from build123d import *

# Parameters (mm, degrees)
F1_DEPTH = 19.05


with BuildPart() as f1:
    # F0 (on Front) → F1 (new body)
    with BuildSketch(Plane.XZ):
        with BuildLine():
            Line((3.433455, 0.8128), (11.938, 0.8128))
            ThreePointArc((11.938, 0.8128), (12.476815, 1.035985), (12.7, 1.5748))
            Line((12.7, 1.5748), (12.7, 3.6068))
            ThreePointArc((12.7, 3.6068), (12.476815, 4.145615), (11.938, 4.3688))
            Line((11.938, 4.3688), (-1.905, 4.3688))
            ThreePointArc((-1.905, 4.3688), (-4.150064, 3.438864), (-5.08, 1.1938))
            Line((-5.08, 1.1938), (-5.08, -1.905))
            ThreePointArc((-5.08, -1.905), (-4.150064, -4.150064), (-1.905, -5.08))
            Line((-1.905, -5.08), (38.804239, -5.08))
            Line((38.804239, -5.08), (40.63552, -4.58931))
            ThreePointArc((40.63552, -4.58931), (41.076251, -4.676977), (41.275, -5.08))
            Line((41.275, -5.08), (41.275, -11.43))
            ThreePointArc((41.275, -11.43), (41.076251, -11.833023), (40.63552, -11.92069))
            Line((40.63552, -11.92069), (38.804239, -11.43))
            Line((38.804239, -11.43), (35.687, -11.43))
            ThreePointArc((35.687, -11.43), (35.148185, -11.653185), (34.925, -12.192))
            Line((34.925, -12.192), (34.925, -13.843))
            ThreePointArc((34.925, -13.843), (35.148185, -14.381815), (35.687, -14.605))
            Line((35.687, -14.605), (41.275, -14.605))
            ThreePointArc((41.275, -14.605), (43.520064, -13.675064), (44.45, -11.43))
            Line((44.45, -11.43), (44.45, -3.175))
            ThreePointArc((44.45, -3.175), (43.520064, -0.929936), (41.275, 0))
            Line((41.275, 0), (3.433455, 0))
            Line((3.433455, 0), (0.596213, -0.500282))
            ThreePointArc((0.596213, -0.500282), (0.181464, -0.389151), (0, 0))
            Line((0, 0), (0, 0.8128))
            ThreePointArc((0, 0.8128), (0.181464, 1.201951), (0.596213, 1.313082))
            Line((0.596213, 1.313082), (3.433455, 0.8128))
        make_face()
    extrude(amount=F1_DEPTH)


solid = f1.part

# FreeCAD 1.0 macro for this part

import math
import FreeCAD as App
import Part
import Sketcher

V = App.Vector
Q = App.Units.Quantity

doc = App.newDocument("Part")
body = doc.addObject("PartDesign::Body", "Body")

sketch1 = body.newObject("Sketcher::SketchObject", "Sketch")
sketch1.AttachmentSupport = (doc.getObject("XZ_Plane"), [""])
sketch1.MapMode = "FlatFace"
sketch1.addGeometry([
    Part.LineSegment(V(3.4, 0.8, 0), V(11.9, 0.8, 0)),
    Part.ArcOfCircle(Part.Circle(V(11.9, 1.6, 0), V(0, 0, 1), 0.8), math.radians(-90), math.radians(0)),
    Part.LineSegment(V(12.7, 1.6, 0), V(12.7, 3.6, 0)),
    Part.ArcOfCircle(Part.Circle(V(11.9, 3.6, 0), V(0, 0, 1), 0.8), math.radians(0), math.radians(90)),
    Part.LineSegment(V(11.9, 4.4, 0), V(-1.9, 4.4, 0)),
    Part.ArcOfCircle(Part.Circle(V(-1.9, 1.2, 0), V(0, 0, 1), 3.2), math.radians(90), math.radians(180)),
    Part.LineSegment(V(-5.1, 1.2, 0), V(-5.1, -1.9, 0)),
    Part.ArcOfCircle(Part.Circle(V(-1.9, -1.9, 0), V(0, 0, 1), 3.2), math.radians(-180), math.radians(-90)),
    Part.LineSegment(V(-1.9, -5.1, 0), V(38.8, -5.1, 0)),
    Part.LineSegment(V(38.8, -5.1, 0), V(40.6, -4.6, 0)),
    Part.ArcOfCircle(Part.Circle(V(40.8, -5.1, 0), V(0, 0, 1), 0.5), math.radians(0), math.radians(105)),
    Part.LineSegment(V(41.3, -5.1, 0), V(41.3, -11.4, 0)),
    Part.ArcOfCircle(Part.Circle(V(40.8, -11.4, 0), V(0, 0, 1), 0.5), math.radians(-105), math.radians(0)),
    Part.LineSegment(V(40.6, -11.9, 0), V(38.8, -11.4, 0)),
    Part.LineSegment(V(38.8, -11.4, 0), V(35.7, -11.4, 0)),
    Part.ArcOfCircle(Part.Circle(V(35.7, -12.2, 0), V(0, 0, 1), 0.8), math.radians(90), math.radians(180)),
    Part.LineSegment(V(34.9, -12.2, 0), V(34.9, -13.8, 0)),
    Part.ArcOfCircle(Part.Circle(V(35.7, -13.8, 0), V(0, 0, 1), 0.8), math.radians(-180), math.radians(-90)),
    Part.LineSegment(V(35.7, -14.6, 0), V(41.3, -14.6, 0)),
    Part.ArcOfCircle(Part.Circle(V(41.3, -11.4, 0), V(0, 0, 1), 3.2), math.radians(-90), math.radians(0)),
    Part.LineSegment(V(44.5, -11.4, 0), V(44.5, -3.2, 0)),
    Part.ArcOfCircle(Part.Circle(V(41.3, -3.2, 0), V(0, 0, 1), 3.2), math.radians(0), math.radians(90)),
    Part.LineSegment(V(41.3, 0, 0), V(3.4, 0, 0)),
    Part.LineSegment(V(3.4, 0, 0), V(0.6, -0.5, 0)),
    Part.ArcOfCircle(Part.Circle(V(0.5, 0, 0), V(0, 0, 1), 0.5), math.radians(180), math.radians(280)),
    Part.LineSegment(V(0, 0, 0), V(0, 0.8, 0)),
    Part.ArcOfCircle(Part.Circle(V(0.5, 0.8, 0), V(0, 0, 1), 0.5), math.radians(80), math.radians(180)),
    Part.LineSegment(V(0.6, 1.3, 0), V(3.4, 0.8, 0)),
], False)
sketch1.addConstraint([
    Sketcher.Constraint("Tangent", 0, 2, 1, 1),
    Sketcher.Constraint("Tangent", 1, 2, 2, 1),
    Sketcher.Constraint("Tangent", 2, 2, 3, 1),
    Sketcher.Constraint("Tangent", 3, 2, 4, 1),
    Sketcher.Constraint("Tangent", 4, 2, 5, 1),
    Sketcher.Constraint("Tangent", 5, 2, 6, 1),
    Sketcher.Constraint("Tangent", 6, 2, 7, 1),
    Sketcher.Constraint("Tangent", 7, 2, 8, 1),
    Sketcher.Constraint("Coincident", 8, 2, 9, 1),
    Sketcher.Constraint("Tangent", 9, 2, 10, 2),
    Sketcher.Constraint("Tangent", 10, 1, 11, 1),
    Sketcher.Constraint("Tangent", 11, 2, 12, 2),
    Sketcher.Constraint("Tangent", 12, 1, 13, 1),
    Sketcher.Constraint("Coincident", 13, 2, 14, 1),
    Sketcher.Constraint("Tangent", 14, 2, 15, 1),
    Sketcher.Constraint("Tangent", 15, 2, 16, 1),
    Sketcher.Constraint("Tangent", 16, 2, 17, 1),
    Sketcher.Constraint("Tangent", 17, 2, 18, 1),
    Sketcher.Constraint("Tangent", 18, 2, 19, 1),
    Sketcher.Constraint("Tangent", 19, 2, 20, 1),
    Sketcher.Constraint("Tangent", 20, 2, 21, 1),
    Sketcher.Constraint("Tangent", 21, 2, 22, 1),
    Sketcher.Constraint("Coincident", 22, 2, 23, 1),
    Sketcher.Constraint("Tangent", 23, 2, 24, 2),
    Sketcher.Constraint("Tangent", 24, 1, 25, 1),
    Sketcher.Constraint("Tangent", 25, 2, 26, 2),
    Sketcher.Constraint("Tangent", 26, 1, 27, 1),
    Sketcher.Constraint("Coincident", 27, 2, 0, 1),
    Sketcher.Constraint("Horizontal", 0),
    Sketcher.Constraint("Vertical", 2),
    Sketcher.Constraint("Horizontal", 4),
    Sketcher.Constraint("Vertical", 6),
    Sketcher.Constraint("Horizontal", 8),
    Sketcher.Constraint("Vertical", 11),
    Sketcher.Constraint("Horizontal", 14),
    Sketcher.Constraint("Vertical", 16),
    Sketcher.Constraint("Horizontal", 18),
    Sketcher.Constraint("Vertical", 20),
    Sketcher.Constraint("Horizontal", 22),
    Sketcher.Constraint("Vertical", 25),
    Sketcher.Constraint("Coincident", 24, 1, -1, 1),
    Sketcher.Constraint("Coincident", 11, 2, 19, 3),
    Sketcher.Constraint("Equal", 1, 3),
    Sketcher.Constraint("Equal", 5, 7),
    Sketcher.Constraint("Equal", 10, 12),
    Sketcher.Constraint("Equal", 3, 15),
    Sketcher.Constraint("Equal", 15, 17),
    Sketcher.Constraint("Equal", 7, 19),
    Sketcher.Constraint("Equal", 19, 21),
    Sketcher.Constraint("Equal", 12, 24),
    Sketcher.Constraint("Equal", 24, 26),
    Sketcher.Constraint("PointOnObject", 21, 2, -1),
    Sketcher.Constraint("Horizontal", 26, 3, 0, 2),
    Sketcher.Constraint("Horizontal", 10, 3, 7, 2),
    Sketcher.Constraint("Horizontal", 11, 2, 13, 2),
    Sketcher.Constraint("Vertical", 9, 2, 12, 1),
    Sketcher.Constraint("Vertical", 23, 2, 26, 1),
    Sketcher.Constraint("Radius", 1, Q("0.03 in")),
    Sketcher.Constraint("Radius", 10, Q("0.02 in")),
    Sketcher.Constraint("Angle", 9, Q("14.999992 deg")),
    Sketcher.Constraint("Angle", 23, Q("-170.000006 deg")),
    Sketcher.Constraint("Radius", 5, Q("0.125 in")),
    Sketcher.Constraint("DistanceX", 18, 1, 18, 2, Q("0.22 in")),
    Sketcher.Constraint("DistanceY", 2, 1, 2, 2, Q("0.08 in")),
    Sketcher.Constraint("DistanceY", 11, 2, 11, 1, Q("0.25 in")),
    Sketcher.Constraint("DistanceY", 10, 3, -1, 1, Q("0.2 in")),
    Sketcher.Constraint("DistanceX", -1, 1, 1, 2, Q("0.5 in")),
    Sketcher.Constraint("DistanceX", 5, 2, -1, 1, Q("0.2 in")),
    Sketcher.Constraint("DistanceY", 6, 2, 6, 1, Q("0.122 in")),
    Sketcher.Constraint("DistanceX", -1, 1, 19, 2, Q("1.75 in")),
])
pad1 = body.newObject("PartDesign::Pad", "Pad")
pad1.Profile = sketch1
pad1.Length = Q("0.75 in")

doc.recompute()
